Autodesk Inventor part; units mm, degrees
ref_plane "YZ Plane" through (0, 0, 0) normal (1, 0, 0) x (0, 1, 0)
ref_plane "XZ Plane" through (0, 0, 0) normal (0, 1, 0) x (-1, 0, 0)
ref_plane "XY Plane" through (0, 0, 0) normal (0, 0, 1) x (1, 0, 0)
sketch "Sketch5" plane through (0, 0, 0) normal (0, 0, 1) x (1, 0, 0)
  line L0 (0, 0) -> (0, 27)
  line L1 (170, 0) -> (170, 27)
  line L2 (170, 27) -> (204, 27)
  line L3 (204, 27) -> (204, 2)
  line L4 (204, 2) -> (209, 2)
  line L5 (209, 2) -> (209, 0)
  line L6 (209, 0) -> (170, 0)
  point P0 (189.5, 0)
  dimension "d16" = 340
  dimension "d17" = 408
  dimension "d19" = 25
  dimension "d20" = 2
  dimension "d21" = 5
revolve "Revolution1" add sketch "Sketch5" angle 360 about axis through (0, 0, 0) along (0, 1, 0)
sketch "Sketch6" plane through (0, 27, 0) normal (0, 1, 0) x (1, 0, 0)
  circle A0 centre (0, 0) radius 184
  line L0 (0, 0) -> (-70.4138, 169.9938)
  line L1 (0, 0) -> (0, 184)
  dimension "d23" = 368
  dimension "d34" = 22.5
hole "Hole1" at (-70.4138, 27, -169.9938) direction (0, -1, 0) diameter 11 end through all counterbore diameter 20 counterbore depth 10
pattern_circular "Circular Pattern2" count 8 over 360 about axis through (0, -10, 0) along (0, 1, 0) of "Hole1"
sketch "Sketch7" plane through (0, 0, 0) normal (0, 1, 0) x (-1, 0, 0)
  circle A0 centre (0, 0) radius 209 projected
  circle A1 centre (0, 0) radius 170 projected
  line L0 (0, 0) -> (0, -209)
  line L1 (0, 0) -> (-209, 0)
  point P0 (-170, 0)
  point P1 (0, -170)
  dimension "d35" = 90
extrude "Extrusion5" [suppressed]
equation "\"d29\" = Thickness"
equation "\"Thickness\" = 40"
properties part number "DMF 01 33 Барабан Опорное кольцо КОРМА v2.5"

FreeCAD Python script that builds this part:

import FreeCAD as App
import Part
import Sketcher

V = App.Vector
Q = App.Units.Quantity


def add_polygon(sketch, points):
    """Adds a closed chain of lines whose ends are joined by coincident constraints."""
    first, n = sketch.GeometryCount, len(points)
    for a, b in zip(points, points[1:] + points[:1]):
        sketch.addGeometry(Part.LineSegment(App.Vector(*a, 0), App.Vector(*b, 0)), False)
    for i in range(n):
        sketch.addConstraint(Sketcher.Constraint("Coincident", first + i, 2, first + (i + 1) % n, 1))

doc = App.newDocument("Part")
params = doc.addObject("Spreadsheet::Sheet", "Params")
for row, (alias, value) in enumerate([
    ("sketch1_width", "5 mm"),
    ("sketch1_height", "2 mm"),
    ("sketch1_height2", "25 mm"),
    ("sketch1_width2", "39 mm"),
    ("revolution_angle", "360 deg"),
    ("sketch2_diameter", "11 mm"),
    ("hole_diameter", "11 mm"),
    ("hole_cbore_diameter", "20 mm"),
    ("hole_cbore_depth", "10 mm"),
], start=1):
    params.set(f"A{row}", alias)
    params.set(f"B{row}", "=" + value)
    params.setAlias(f"B{row}", alias)

body = doc.addObject("PartDesign::Body", "Body")

sketch1 = body.newObject("Sketcher::SketchObject", "Sketch")
sketch1.AttachmentSupport = (doc.getObject("XY_Plane"), [""])
sketch1.MapMode = "FlatFace"
add_polygon(sketch1, [(170, 27), (170, 0), (209, 0), (209, 2), (204, 2), (204, 27)])
sketch1.addConstraint(Sketcher.Constraint("Vertical", 0))
sketch1.addConstraint(Sketcher.Constraint("Horizontal", 1))
sketch1.addConstraint(Sketcher.Constraint("Vertical", 2))
sketch1.addConstraint(Sketcher.Constraint("Horizontal", 3))
sketch1.addConstraint(Sketcher.Constraint("Vertical", 4))
sketch1.addConstraint(Sketcher.Constraint("Horizontal", 5))
sketch1.addConstraint(Sketcher.Constraint("PointOnObject", 0, 2, -1))
sketch1.addConstraint(Sketcher.Constraint("DistanceX", 3, 2, 3, 1, Q("5 mm")))
sketch1.addConstraint(Sketcher.Constraint("DistanceY", 2, 1, 2, 2, Q("2 mm")))
sketch1.addConstraint(Sketcher.Constraint("DistanceY", 4, 1, 4, 2, Q("25 mm")))
sketch1.addConstraint(Sketcher.Constraint("DistanceX", 1, 1, 1, 2, Q("39 mm")))
sketch1.addConstraint(Sketcher.Constraint("DistanceX", -1, 1, 0, 2, Q("170 mm")))
sketch1.setExpression("Constraints[13]", "Params.sketch1_width")
sketch1.setExpression("Constraints[14]", "Params.sketch1_height")
sketch1.setExpression("Constraints[15]", "Params.sketch1_height2")
sketch1.setExpression("Constraints[16]", "Params.sketch1_width2")
revolution = body.newObject("PartDesign::Revolution", "Revolution")
revolution.Profile = sketch1
revolution.ReferenceAxis = (sketch1, ["V_Axis"])
revolution.setExpression("Angle", "Params.revolution_angle")

sketch2 = body.newObject("Sketcher::SketchObject", "Sketch001")
sketch2.AttachmentSupport = (doc.getObject("XZ_Plane"), [""])
sketch2.MapMode = "FlatFace"
sketch2.AttachmentOffset = App.Placement(V(0, 0, -27), App.Rotation())
sketch2.addGeometry(Part.Circle(V(-70.4138, -169.9938, 0), V(0, 0, 1), 5.5), False)
sketch2.addConstraint(Sketcher.Constraint("Diameter", 0, Q("11 mm")))
sketch2.addConstraint(Sketcher.Constraint("DistanceX", 0, 3, -1, 1, Q("70.4138 mm")))
sketch2.addConstraint(Sketcher.Constraint("DistanceY", 0, 3, -1, 1, Q("169.9938 mm")))
sketch2.setExpression("Constraints[0]", "Params.sketch2_diameter")
doc.recompute()
hole = body.newObject("PartDesign::Hole", "Hole")
hole.Profile = sketch2
hole.ThreadType = "None"
hole.setExpression("Diameter", "Params.hole_diameter")
hole.DepthType = "ThroughAll"
hole.HoleCutType = "Counterbore"
hole.setExpression("HoleCutDiameter", "Params.hole_cbore_diameter")
hole.setExpression("HoleCutDepth", "Params.hole_cbore_depth")
hole.Reversed = True
doc.recompute()

polarpattern = body.newObject("PartDesign::PolarPattern", "PolarPattern")
polarpattern.Originals = [hole]
polarpattern.Axis = (doc.getObject("Y_Axis"), [""])
polarpattern.Angle = 360
polarpattern.Occurrences = 8
body.Tip = polarpattern

doc.recompute()
